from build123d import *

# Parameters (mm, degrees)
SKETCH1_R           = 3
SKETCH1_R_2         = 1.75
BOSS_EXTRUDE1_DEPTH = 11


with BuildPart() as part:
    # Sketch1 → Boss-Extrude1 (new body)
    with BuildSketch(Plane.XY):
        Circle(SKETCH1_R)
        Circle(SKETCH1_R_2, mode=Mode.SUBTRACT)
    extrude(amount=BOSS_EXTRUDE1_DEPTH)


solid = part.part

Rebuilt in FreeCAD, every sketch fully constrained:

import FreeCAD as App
import Part
import Sketcher
from FreeCAD import Vector

doc = App.newDocument("Part")
params = doc.addObject("Spreadsheet::Sheet", "Params")
for row, (alias, value) in enumerate([
    ("sketch1_diameter", "6 mm"),
    ("sketch1_diameter2", "3.5 mm"),
    ("pad1_length", "11 mm"),
], start=1):
    params.set(f"A{row}", alias)
    params.set(f"B{row}", "=" + value)
    params.setAlias(f"B{row}", alias)

body = doc.addObject("PartDesign::Body", "Body")

# Sketch on XY plane
sketch1 = body.newObject("Sketcher::SketchObject", "Sketch")
sketch1.AttachmentSupport = (doc.getObject("XY_Plane"), [""])
sketch1.MapMode = "FlatFace"
sketch1.addGeometry(Part.Circle(Vector(0, 0, 0), Vector(0, 0, 1), 3), False)
sketch1.addGeometry(Part.Circle(Vector(0, 0, 0), Vector(0, 0, 1), 1.8), False)
sketch1.addConstraint(Sketcher.Constraint("Coincident", 0, 3, -1, 1))
sketch1.addConstraint(Sketcher.Constraint("Coincident", 1, 3, -1, 1))
sketch1.addConstraint(Sketcher.Constraint("Diameter", 0, 6.0))
sketch1.addConstraint(Sketcher.Constraint("Diameter", 1, 3.5))
sketch1.setExpression("Constraints[2]", "Params.sketch1_diameter")
sketch1.setExpression("Constraints[3]", "Params.sketch1_diameter2")
pad1 = body.newObject("PartDesign::Pad", "Pad")
pad1.Profile = sketch1
pad1.setExpression("Length", "Params.pad1_length")

doc.recompute()
